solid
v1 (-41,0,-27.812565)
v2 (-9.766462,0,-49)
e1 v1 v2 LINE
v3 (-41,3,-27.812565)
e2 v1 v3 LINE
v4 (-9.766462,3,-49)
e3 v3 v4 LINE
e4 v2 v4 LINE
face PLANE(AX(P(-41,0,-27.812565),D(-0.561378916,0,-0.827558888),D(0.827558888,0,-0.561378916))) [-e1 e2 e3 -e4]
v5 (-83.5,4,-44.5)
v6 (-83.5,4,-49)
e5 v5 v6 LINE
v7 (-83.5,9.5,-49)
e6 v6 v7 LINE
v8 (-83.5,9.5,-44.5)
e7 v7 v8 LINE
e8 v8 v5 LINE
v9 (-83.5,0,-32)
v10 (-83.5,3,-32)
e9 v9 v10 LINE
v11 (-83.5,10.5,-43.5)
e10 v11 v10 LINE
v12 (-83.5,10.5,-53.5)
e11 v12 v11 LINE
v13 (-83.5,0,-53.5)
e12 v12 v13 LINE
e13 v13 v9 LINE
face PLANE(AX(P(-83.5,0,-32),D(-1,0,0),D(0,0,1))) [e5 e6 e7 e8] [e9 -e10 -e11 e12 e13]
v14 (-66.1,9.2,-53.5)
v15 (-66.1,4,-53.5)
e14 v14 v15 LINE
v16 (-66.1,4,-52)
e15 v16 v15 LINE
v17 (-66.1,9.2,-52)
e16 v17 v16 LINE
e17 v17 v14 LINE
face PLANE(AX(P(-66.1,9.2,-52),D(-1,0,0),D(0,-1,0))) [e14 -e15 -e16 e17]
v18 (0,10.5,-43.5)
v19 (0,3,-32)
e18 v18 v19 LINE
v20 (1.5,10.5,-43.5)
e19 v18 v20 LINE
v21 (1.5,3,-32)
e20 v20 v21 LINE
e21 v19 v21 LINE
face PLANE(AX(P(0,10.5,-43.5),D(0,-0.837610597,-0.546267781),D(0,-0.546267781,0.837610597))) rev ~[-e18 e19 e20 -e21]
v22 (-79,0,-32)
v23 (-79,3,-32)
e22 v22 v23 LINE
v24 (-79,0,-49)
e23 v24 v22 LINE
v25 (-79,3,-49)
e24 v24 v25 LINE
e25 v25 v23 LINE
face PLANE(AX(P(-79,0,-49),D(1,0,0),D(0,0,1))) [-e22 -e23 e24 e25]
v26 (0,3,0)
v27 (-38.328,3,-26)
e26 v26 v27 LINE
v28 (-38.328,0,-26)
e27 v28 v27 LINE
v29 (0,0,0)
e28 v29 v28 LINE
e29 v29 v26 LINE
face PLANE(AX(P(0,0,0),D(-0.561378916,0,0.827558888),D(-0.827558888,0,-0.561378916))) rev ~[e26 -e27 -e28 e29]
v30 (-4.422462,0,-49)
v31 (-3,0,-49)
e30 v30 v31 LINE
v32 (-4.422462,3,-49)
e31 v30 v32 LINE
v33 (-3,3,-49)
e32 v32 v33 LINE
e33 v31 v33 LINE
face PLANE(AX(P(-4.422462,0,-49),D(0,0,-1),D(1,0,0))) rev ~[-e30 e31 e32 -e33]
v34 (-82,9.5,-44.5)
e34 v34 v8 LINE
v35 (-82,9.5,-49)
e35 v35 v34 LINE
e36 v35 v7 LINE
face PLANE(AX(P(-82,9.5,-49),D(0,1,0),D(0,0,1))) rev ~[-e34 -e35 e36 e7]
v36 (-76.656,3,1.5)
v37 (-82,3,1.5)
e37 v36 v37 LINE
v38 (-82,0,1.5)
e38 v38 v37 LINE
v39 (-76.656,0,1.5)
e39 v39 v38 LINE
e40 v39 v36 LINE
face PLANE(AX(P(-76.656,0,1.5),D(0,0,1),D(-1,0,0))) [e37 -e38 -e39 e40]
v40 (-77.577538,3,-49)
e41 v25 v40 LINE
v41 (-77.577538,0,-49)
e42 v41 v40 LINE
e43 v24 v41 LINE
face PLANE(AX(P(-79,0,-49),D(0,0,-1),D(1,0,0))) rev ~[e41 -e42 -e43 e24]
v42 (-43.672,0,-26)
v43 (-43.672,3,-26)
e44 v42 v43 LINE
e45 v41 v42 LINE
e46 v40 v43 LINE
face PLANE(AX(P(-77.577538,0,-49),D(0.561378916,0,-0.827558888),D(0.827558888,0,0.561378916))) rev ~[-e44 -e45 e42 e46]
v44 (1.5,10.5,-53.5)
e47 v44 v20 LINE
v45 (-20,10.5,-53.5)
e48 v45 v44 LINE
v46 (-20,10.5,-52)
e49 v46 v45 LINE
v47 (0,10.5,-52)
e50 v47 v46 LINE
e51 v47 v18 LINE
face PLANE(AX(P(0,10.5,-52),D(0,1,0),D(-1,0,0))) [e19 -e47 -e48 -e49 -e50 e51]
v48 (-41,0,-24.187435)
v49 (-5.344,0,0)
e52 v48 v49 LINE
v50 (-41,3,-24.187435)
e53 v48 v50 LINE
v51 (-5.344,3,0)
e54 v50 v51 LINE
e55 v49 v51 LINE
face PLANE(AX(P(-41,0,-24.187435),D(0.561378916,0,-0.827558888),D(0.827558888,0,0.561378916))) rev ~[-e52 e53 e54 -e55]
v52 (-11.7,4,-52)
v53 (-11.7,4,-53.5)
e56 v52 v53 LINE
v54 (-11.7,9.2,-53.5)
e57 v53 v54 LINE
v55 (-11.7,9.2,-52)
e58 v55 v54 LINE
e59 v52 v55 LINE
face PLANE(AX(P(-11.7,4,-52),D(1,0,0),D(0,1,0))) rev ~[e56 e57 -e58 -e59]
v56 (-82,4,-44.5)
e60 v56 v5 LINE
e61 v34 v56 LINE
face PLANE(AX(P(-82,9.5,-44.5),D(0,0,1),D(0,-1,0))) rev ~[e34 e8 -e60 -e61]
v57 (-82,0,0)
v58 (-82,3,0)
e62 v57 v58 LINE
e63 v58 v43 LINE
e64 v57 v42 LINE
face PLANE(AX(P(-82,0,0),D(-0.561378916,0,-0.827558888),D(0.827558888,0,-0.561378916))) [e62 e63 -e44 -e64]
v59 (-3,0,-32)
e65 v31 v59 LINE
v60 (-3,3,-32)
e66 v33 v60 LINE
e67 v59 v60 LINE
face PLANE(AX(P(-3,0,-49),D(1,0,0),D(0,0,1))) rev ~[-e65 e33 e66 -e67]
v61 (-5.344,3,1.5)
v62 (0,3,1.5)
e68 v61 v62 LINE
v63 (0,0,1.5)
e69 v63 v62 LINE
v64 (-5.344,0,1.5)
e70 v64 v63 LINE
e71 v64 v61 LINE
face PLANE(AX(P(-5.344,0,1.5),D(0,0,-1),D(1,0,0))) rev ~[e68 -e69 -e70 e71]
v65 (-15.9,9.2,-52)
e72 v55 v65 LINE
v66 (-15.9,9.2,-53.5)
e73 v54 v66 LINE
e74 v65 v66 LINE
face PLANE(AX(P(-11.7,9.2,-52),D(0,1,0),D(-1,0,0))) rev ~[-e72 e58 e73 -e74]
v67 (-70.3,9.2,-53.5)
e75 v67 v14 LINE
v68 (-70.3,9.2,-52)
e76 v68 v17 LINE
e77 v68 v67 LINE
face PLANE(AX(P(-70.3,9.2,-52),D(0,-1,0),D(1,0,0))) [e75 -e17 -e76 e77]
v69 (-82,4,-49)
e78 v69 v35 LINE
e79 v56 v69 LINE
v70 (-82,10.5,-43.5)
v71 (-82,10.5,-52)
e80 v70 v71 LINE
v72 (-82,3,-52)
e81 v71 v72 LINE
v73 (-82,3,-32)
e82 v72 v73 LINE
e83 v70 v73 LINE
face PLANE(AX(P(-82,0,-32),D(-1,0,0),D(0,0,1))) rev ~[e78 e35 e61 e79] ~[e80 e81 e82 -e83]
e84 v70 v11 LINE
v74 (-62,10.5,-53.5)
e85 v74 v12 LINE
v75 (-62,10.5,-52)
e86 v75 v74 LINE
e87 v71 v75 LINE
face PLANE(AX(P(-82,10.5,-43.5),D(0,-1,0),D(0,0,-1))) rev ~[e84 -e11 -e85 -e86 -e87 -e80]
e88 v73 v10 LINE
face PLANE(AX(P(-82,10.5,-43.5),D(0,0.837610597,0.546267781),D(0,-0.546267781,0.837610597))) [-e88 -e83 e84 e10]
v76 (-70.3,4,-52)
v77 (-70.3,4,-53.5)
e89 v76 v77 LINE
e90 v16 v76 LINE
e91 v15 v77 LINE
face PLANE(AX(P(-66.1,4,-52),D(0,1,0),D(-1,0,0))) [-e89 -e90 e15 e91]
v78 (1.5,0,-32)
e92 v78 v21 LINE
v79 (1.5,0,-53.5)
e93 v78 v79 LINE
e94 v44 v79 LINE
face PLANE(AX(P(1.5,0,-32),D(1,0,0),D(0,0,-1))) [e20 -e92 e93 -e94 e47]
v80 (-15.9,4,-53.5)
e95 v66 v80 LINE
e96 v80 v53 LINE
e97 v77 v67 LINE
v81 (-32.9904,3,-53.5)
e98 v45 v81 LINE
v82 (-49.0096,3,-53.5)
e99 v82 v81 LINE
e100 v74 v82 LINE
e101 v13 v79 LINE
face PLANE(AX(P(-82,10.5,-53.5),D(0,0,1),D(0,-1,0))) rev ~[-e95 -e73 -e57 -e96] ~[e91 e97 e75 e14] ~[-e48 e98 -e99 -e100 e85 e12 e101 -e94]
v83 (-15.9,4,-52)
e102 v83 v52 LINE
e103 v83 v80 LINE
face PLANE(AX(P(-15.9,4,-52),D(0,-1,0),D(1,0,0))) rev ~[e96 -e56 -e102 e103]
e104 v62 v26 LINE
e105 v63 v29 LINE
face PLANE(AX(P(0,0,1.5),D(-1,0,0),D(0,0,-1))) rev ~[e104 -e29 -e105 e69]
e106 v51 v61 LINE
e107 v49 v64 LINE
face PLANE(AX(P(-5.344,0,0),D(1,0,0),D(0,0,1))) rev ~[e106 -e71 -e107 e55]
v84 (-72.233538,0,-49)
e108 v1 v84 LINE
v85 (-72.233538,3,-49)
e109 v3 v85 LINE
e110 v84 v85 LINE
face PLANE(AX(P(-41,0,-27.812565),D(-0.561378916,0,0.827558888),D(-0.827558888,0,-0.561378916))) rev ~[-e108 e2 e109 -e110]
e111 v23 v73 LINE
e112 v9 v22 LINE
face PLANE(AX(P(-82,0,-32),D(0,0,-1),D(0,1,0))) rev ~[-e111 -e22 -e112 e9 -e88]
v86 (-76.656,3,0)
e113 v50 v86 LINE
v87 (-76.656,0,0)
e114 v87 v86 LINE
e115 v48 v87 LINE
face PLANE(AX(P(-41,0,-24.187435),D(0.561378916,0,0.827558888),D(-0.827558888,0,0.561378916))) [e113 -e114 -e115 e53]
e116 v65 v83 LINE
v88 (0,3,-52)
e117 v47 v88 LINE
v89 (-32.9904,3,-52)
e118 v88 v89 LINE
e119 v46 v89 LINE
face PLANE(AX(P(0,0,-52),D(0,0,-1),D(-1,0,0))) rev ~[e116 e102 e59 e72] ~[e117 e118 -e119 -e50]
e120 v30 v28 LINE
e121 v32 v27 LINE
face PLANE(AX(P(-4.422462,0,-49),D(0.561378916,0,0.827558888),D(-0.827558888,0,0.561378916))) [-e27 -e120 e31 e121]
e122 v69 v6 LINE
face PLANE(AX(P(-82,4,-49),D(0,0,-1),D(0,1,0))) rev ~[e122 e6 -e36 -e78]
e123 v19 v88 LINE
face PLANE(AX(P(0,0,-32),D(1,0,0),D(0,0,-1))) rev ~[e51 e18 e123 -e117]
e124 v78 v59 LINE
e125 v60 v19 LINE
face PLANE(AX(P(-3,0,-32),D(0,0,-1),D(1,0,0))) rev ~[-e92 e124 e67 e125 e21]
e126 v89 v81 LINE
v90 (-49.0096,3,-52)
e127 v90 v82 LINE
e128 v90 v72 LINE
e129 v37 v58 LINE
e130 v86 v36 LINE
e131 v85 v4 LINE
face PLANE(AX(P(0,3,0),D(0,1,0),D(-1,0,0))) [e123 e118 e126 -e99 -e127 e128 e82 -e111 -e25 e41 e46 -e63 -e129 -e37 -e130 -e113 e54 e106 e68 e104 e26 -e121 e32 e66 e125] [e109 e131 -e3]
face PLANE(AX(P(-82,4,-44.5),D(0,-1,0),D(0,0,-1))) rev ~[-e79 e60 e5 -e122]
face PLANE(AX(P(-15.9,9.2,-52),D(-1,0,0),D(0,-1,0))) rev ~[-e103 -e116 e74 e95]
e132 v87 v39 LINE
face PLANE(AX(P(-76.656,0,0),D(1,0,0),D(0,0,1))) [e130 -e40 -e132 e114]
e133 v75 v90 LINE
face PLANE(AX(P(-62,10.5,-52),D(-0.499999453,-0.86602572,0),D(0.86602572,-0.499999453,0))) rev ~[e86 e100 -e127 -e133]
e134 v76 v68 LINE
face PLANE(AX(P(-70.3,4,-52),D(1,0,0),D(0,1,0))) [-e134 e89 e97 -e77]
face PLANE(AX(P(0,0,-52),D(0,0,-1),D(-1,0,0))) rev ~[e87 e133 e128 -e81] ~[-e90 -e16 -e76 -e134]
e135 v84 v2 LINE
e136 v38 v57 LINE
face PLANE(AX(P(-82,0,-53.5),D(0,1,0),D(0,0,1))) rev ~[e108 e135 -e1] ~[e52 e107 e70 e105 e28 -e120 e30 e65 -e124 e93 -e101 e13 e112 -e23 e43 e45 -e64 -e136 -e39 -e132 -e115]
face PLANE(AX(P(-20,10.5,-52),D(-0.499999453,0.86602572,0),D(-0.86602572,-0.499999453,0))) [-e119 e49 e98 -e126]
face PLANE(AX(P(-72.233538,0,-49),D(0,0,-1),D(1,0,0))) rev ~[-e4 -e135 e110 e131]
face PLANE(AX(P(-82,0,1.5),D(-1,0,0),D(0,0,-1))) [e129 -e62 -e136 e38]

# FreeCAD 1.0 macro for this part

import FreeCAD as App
import Part
import Sketcher


def add_polygon(sketch, points):
    """Adds a closed chain of lines whose ends are joined by coincident constraints."""
    first, n = sketch.GeometryCount, len(points)
    for a, b in zip(points, points[1:] + points[:1]):
        sketch.addGeometry(Part.LineSegment(App.Vector(*a, 0), App.Vector(*b, 0)), False)
    for i in range(n):
        sketch.addConstraint(Sketcher.Constraint("Coincident", first + i, 2, first + (i + 1) % n, 1))

doc = App.newDocument("Part")
body = doc.addObject("PartDesign::Body", "Body")

# Sketch on XZ plane
sketch1 = body.newObject("Sketcher::SketchObject", "Sketch")
sketch1.AttachmentSupport = (doc.getObject("XZ_Plane"), [""])
sketch1.MapMode = "FlatFace"
add_polygon(sketch1, [(-43.7, -26), (-82, 0), (-82, 1.5), (-76.7, 1.5), (-76.7, 0), (-41, -24.2), (-5.3, 0), (-5.3, 1.5), (0, 1.5), (0, 0), (-38.3, -26), (-4.4, -49), (-3, -49), (-3, -32), (0, -32), (0, -52), (-82, -52), (-82, -32), (-79, -32), (-79, -49), (-77.6, -49)])  # lines 0-20
add_polygon(sketch1, [(-41, -27.8), (-72.2, -49), (-9.8, -49)])  # lines 21-23
sketch1.addConstraint([
    Sketcher.Constraint("Vertical", 1),
    Sketcher.Constraint("Horizontal", 2),
    Sketcher.Constraint("Vertical", 3),
    Sketcher.Constraint("Vertical", 6),
    Sketcher.Constraint("Horizontal", 7),
    Sketcher.Constraint("Vertical", 8),
    Sketcher.Constraint("Horizontal", 11),
    Sketcher.Constraint("Vertical", 12),
    Sketcher.Constraint("Horizontal", 13),
    Sketcher.Constraint("Vertical", 14),
    Sketcher.Constraint("Horizontal", 15),
    Sketcher.Constraint("Vertical", 16),
    Sketcher.Constraint("Horizontal", 17),
    Sketcher.Constraint("Vertical", 18),
    Sketcher.Constraint("Horizontal", 19),
    Sketcher.Constraint("Horizontal", 22),
    Sketcher.Constraint("Coincident", 8, 2, -1, 1),
    Sketcher.Constraint("PointOnObject", 0, 2, -1),
    Sketcher.Constraint("PointOnObject", 3, 2, -1),
    Sketcher.Constraint("PointOnObject", 5, 2, -1),
    Sketcher.Constraint("PointOnObject", 13, 2, -2),
    Sketcher.Constraint("Parallel", 0, 4),
    Sketcher.Constraint("Parallel", 5, 9),
    Sketcher.Constraint("Parallel", 4, 10),
    Sketcher.Constraint("Parallel", 9, 20),
    Sketcher.Constraint("Parallel", 20, 21),
    Sketcher.Constraint("Parallel", 10, 23),
    Sketcher.Constraint("Horizontal", 2, 2, 6, 2),
    Sketcher.Constraint("Horizontal", 13, 2, 16, 2),
    Sketcher.Constraint("Horizontal", 11, 2, 18, 2),
    Sketcher.Constraint("Horizontal", 9, 2, 20, 2),
    Sketcher.Constraint("Horizontal", 19, 2, 21, 2),
    Sketcher.Constraint("Vertical", 1, 2, 15, 2),
    Sketcher.Constraint("Vertical", 4, 2, 23, 2),
    Sketcher.Constraint("Equal", 2, 7),
    Sketcher.Constraint("Equal", 13, 17),
    Sketcher.Constraint("Equal", 11, 19),
    Sketcher.Constraint("DistanceX", 13, 1, 13, 2, 3.0),
    Sketcher.Constraint("DistanceX", 15, 2, 15, 1, 82.0),
    Sketcher.Constraint("DistanceY", 14, 2, 14, 1, 20.0),
    Sketcher.Constraint("DistanceY", 1, 1, 1, 2, 1.5),
    Sketcher.Constraint("DistanceY", 14, 2, -1, 1, 52.0),
    Sketcher.Constraint("DistanceY", 14, 2, 11, 2, 3.0),
    Sketcher.Constraint("DistanceY", 9, 2, -1, 1, 26.0),
    Sketcher.Constraint("DistanceX", 2, 1, 2, 2, 5.344),
    Sketcher.Constraint("DistanceX", 22, 1, 22, 2, 62.467),
    Sketcher.Constraint("DistanceX", 11, 1, 11, 2, 1.4225),
])
pad1 = body.newObject("PartDesign::Pad", "Pad")
pad1.Profile = sketch1
pad1.Length = 3
pad1.Reversed = True

# Sketch on XY plane
sketch2 = body.newObject("Sketcher::SketchObject", "Sketch001")
sketch2.AttachmentSupport = (doc.getObject("XY_Plane"), [""])
sketch2.MapMode = "FlatFace"
sketch2.AttachmentOffset = App.Placement(App.Vector(0, 0, -52), App.Rotation())
add_polygon(sketch2, [(0, 10.5), (0, 0), (-82, 0), (-82, 10.5), (-62, 10.5), (-49, 3), (-33, 3), (-20, 10.5)])  # lines 0-7
add_polygon(sketch2, [(-11.7, 4), (-11.7, 9.2), (-15.9, 9.2), (-15.9, 4)])  # lines 8-11
add_polygon(sketch2, [(-70.3, 9.2), (-70.3, 4), (-66.1, 4), (-66.1, 9.2)])  # lines 12-15
sketch2.addConstraint([
    Sketcher.Constraint("Vertical", 0),
    Sketcher.Constraint("Horizontal", 1),
    Sketcher.Constraint("Vertical", 2),
    Sketcher.Constraint("Horizontal", 3),
    Sketcher.Constraint("Horizontal", 5),
    Sketcher.Constraint("Horizontal", 7),
    Sketcher.Constraint("Vertical", 8),
    Sketcher.Constraint("Horizontal", 9),
    Sketcher.Constraint("Vertical", 10),
    Sketcher.Constraint("Horizontal", 11),
    Sketcher.Constraint("Vertical", 12),
    Sketcher.Constraint("Horizontal", 13),
    Sketcher.Constraint("Vertical", 14),
    Sketcher.Constraint("Horizontal", 15),
    Sketcher.Constraint("Coincident", 0, 2, -1, 1),
    Sketcher.Constraint("Horizontal", 3, 2, 6, 2),
    Sketcher.Constraint("Horizontal", 11, 2, 12, 2),
    Sketcher.Constraint("Horizontal", 9, 2, 14, 2),
    Sketcher.Constraint("Equal", 3, 7),
    Sketcher.Constraint("Equal", 11, 13),
    Sketcher.Constraint("Equal", 4, 6),
    Sketcher.Constraint("DistanceX", 3, 1, 3, 2, 20.0),
    Sketcher.Constraint("Distance", 4, 15.0),
    Sketcher.Constraint("DistanceX", 9, 2, 9, 1, 4.2),
    Sketcher.Constraint("DistanceY", 8, 1, 8, 2, 5.2),
    Sketcher.Constraint("DistanceY", -1, 1, 10, 2, 4.0),
    Sketcher.Constraint("DistanceX", 8, 2, -1, 1, 11.7),
    Sketcher.Constraint("DistanceY", 4, 2, 3, 2, 7.5),
    Sketcher.Constraint("DistanceX", 1, 2, 12, 2, 11.7),
    Sketcher.Constraint("DistanceX", 1, 2, 1, 1, 82.0),
    Sketcher.Constraint("DistanceY", 0, 2, 0, 1, 10.5),
])
pad2 = body.newObject("PartDesign::Pad", "Pad001")
pad2.Profile = sketch2
pad2.Length = 1.5
pad2.Reversed = True

# Sketch on YZ plane
sketch3 = body.newObject("Sketcher::SketchObject", "Sketch002")
sketch3.AttachmentSupport = (doc.getObject("YZ_Plane"), [""])
sketch3.MapMode = "FlatFace"
add_polygon(sketch3, [(0, -32), (0, -53.5), (10.5, -53.5), (10.5, -43.5), (3, -32)])  # lines 0-4
sketch3.addConstraint([
    Sketcher.Constraint("Vertical", 0),
    Sketcher.Constraint("Horizontal", 1),
    Sketcher.Constraint("Vertical", 2),
    Sketcher.Constraint("Horizontal", 4),
    Sketcher.Constraint("PointOnObject", 0, 2, -2),
    Sketcher.Constraint("DistanceY", 2, 1, 2, 2, 10.0),
    Sketcher.Constraint("DistanceX", 4, 2, 4, 1, 3.0),
    Sketcher.Constraint("DistanceX", 1, 1, 1, 2, 10.5),
    Sketcher.Constraint("DistanceY", 0, 2, 0, 1, 21.5),
    Sketcher.Constraint("DistanceY", 3, 2, -1, 1, 32.0),
])
pad3 = body.newObject("PartDesign::Pad", "Pad002")
pad3.Profile = sketch3
pad3.Length = 1.5

# Sketch on YZ plane
sketch4 = body.newObject("Sketcher::SketchObject", "Sketch003")
sketch4.AttachmentSupport = (doc.getObject("YZ_Plane"), [""])
sketch4.MapMode = "FlatFace"
sketch4.AttachmentOffset = App.Placement(App.Vector(0, 0, -82), App.Rotation())
add_polygon(sketch4, [(3, -32), (10.5, -43.5), (10.5, -53.5), (0, -53.5), (0, -32)])  # lines 0-4
add_polygon(sketch4, [(4, -49), (9.5, -49), (9.5, -44.5), (4, -44.5)])  # lines 5-8
sketch4.addConstraint([
    Sketcher.Constraint("Vertical", 1),
    Sketcher.Constraint("Horizontal", 2),
    Sketcher.Constraint("Vertical", 3),
    Sketcher.Constraint("Horizontal", 4),
    Sketcher.Constraint("Horizontal", 5),
    Sketcher.Constraint("Vertical", 6),
    Sketcher.Constraint("Horizontal", 7),
    Sketcher.Constraint("Vertical", 8),
    Sketcher.Constraint("PointOnObject", 2, 2, -2),
    Sketcher.Constraint("DistanceX", 5, 1, 5, 2, 5.5),
    Sketcher.Constraint("DistanceY", 6, 1, 6, 2, 4.5),
    Sketcher.Constraint("DistanceX", -1, 1, 7, 2, 4.0),
    Sketcher.Constraint("DistanceX", 5, 2, 1, 2, 1.0),
    Sketcher.Constraint("DistanceY", 6, 2, 0, 2, 1.0),
    Sketcher.Constraint("DistanceY", 1, 2, 5, 2, 4.5),
    Sketcher.Constraint("DistanceX", 4, 1, 4, 2, 3.0),
    Sketcher.Constraint("DistanceY", 3, 1, 3, 2, 21.5),
    Sketcher.Constraint("DistanceY", 3, 2, -1, 1, 32.0),
])
pad4 = body.newObject("PartDesign::Pad", "Pad003")
pad4.Profile = sketch4
pad4.Length = 1.5
pad4.Reversed = True

doc.recompute()
